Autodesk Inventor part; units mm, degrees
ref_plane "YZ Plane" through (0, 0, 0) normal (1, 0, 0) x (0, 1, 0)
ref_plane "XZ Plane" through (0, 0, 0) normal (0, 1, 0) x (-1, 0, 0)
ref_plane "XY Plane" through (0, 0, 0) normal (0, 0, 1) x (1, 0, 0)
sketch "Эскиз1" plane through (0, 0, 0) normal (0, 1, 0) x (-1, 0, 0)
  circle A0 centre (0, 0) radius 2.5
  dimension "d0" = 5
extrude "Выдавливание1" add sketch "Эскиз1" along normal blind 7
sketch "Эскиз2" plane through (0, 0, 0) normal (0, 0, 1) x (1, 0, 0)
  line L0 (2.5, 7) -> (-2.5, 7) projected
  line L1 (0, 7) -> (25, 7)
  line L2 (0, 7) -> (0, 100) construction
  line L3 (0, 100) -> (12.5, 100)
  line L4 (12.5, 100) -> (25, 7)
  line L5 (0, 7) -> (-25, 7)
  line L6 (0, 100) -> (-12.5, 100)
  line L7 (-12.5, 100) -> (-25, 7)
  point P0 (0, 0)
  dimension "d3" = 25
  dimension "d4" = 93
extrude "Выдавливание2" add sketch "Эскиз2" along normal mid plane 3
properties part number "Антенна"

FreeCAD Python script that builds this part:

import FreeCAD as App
import Part
import Sketcher
from FreeCAD import Vector


def add_polygon(sketch, points):
    """Adds a closed chain of lines whose ends are joined by coincident constraints."""
    first, n = sketch.GeometryCount, len(points)
    for a, b in zip(points, points[1:] + points[:1]):
        sketch.addGeometry(Part.LineSegment(App.Vector(*a, 0), App.Vector(*b, 0)), False)
    for i in range(n):
        sketch.addConstraint(Sketcher.Constraint("Coincident", first + i, 2, first + (i + 1) % n, 1))

doc = App.newDocument("Part")
body = doc.addObject("PartDesign::Body", "Body")

sketch1 = body.newObject("Sketcher::SketchObject", "Sketch")
sketch1.AttachmentSupport = (doc.getObject("XZ_Plane"), [""])
sketch1.MapMode = "FlatFace"
sketch1.addGeometry(Part.Circle(Vector(0, 0, 0), Vector(0, 0, 1), 2.5), False)
sketch1.addConstraint(Sketcher.Constraint("Coincident", 0, 3, -1, 1))
sketch1.addConstraint(Sketcher.Constraint("Diameter", 0, 5.0))
pad1 = body.newObject("PartDesign::Pad", "Pad")
pad1.Profile = sketch1
pad1.Length = 7
pad1.Reversed = True

sketch2 = body.newObject("Sketcher::SketchObject", "Sketch001")
sketch2.AttachmentSupport = (doc.getObject("XY_Plane"), [""])
sketch2.MapMode = "FlatFace"
add_polygon(sketch2, [(-25, 7), (25, 7), (12.5, 100), (-12.5, 100)])
sketch2.addConstraint(Sketcher.Constraint("Horizontal", 0))
sketch2.addConstraint(Sketcher.Constraint("Horizontal", 2))
sketch2.addConstraint(Sketcher.Constraint("Equal", 1, 3))
sketch2.addConstraint(Sketcher.Constraint("DistanceX", 2, 2, 2, 1, 25.0))
sketch2.addConstraint(Sketcher.Constraint("DistanceX", -1, 1, 0, 2, 25.0))
sketch2.addConstraint(Sketcher.Constraint("DistanceX", 3, 2, -1, 1, 25.0))
sketch2.addConstraint(Sketcher.Constraint("DistanceY", 0, 2, 1, 2, 93.0))
sketch2.addConstraint(Sketcher.Constraint("DistanceY", -1, 1, 0, 2, 7.0))
pad2 = body.newObject("PartDesign::Pad", "Pad001")
pad2.Profile = sketch2
pad2.Length = 3
pad2.Midplane = True

doc.recompute()
